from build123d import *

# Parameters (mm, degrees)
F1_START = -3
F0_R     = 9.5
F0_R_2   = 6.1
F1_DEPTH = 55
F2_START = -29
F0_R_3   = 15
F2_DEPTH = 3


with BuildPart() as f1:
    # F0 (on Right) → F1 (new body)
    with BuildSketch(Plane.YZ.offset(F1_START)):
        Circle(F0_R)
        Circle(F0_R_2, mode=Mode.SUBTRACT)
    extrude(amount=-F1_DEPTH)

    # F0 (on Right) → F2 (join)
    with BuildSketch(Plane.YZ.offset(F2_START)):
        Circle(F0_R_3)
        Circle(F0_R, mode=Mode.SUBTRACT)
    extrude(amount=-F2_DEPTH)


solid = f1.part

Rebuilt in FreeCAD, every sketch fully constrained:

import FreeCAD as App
import Part
import Sketcher

V = App.Vector
Q = App.Units.Quantity

doc = App.newDocument("Part")
body = doc.addObject("PartDesign::Body", "Body")

# Sketch on YZ plane
sketch1 = doc.addObject("Sketcher::SketchObject", "Sketch")
body.addObject(sketch1)
sketch1.AttachmentSupport = (doc.YZ_Plane, [""])
sketch1.MapMode = "FlatFace"
sketch1.AttachmentOffset = App.Placement(V(0, 0, -3), App.Rotation())
sketch1.addGeometry(Part.Circle(V(0, 0, 0), V(0, 0, 1), 10), False)
sketch1.addGeometry(Part.Circle(V(0, 0, 0), V(0, 0, 1), 6), False)
sketch1.addConstraint(Sketcher.Constraint("Coincident", 0, 3, -1, 1))
sketch1.addConstraint(Sketcher.Constraint("Coincident", 1, 3, -1, 1))
sketch1.addConstraint(Sketcher.Constraint("Diameter", 0, Q("19 mm")))
sketch1.addConstraint(Sketcher.Constraint("Diameter", 1, Q("12.2 mm")))
pad1 = doc.addObject("PartDesign::Pad", "Pad")
body.addObject(pad1)
pad1.Profile = sketch1
pad1.Length = 55
pad1.Reversed = True

# Sketch on YZ plane
sketch2 = doc.addObject("Sketcher::SketchObject", "Sketch001")
body.addObject(sketch2)
sketch2.AttachmentSupport = (doc.YZ_Plane, [""])
sketch2.MapMode = "FlatFace"
sketch2.AttachmentOffset = App.Placement(V(0, 0, -29), App.Rotation())
sketch2.addGeometry(Part.Circle(V(0, 0, 0), V(0, 0, 1), 15), False)
sketch2.addGeometry(Part.Circle(V(0, 0, 0), V(0, 0, 1), 10), False)
sketch2.addConstraint(Sketcher.Constraint("Coincident", 0, 3, -1, 1))
sketch2.addConstraint(Sketcher.Constraint("Coincident", 1, 3, -1, 1))
sketch2.addConstraint(Sketcher.Constraint("Diameter", 0, Q("30 mm")))
sketch2.addConstraint(Sketcher.Constraint("Diameter", 1, Q("19 mm")))
pad2 = doc.addObject("PartDesign::Pad", "Pad001")
body.addObject(pad2)
pad2.Profile = sketch2
pad2.Length = 3
pad2.Reversed = True

doc.recompute()
